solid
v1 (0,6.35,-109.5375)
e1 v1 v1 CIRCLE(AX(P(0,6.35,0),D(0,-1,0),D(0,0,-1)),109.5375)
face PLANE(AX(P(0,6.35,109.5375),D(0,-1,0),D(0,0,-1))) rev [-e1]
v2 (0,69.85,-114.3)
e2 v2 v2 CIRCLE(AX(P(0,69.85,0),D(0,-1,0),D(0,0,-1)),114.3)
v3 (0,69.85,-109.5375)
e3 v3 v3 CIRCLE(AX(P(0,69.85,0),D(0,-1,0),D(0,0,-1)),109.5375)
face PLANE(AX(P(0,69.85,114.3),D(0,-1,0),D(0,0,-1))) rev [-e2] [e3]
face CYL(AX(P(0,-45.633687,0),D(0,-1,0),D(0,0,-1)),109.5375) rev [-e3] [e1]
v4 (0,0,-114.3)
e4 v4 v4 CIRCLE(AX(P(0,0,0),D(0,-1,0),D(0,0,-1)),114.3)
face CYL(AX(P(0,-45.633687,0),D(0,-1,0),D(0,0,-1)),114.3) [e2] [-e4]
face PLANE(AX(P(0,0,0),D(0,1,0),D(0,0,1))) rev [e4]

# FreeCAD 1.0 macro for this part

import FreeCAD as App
import Part
import Sketcher
from FreeCAD import Vector
Q = App.Units.Quantity


def add_polygon(sketch, points):
    """Adds a closed chain of lines whose ends are joined by coincident constraints."""
    first, n = sketch.GeometryCount, len(points)
    for a, b in zip(points, points[1:] + points[:1]):
        sketch.addGeometry(Part.LineSegment(App.Vector(*a, 0), App.Vector(*b, 0)), False)
    for i in range(n):
        sketch.addConstraint(Sketcher.Constraint("Coincident", first + i, 2, first + (i + 1) % n, 1))

doc = App.newDocument("Part")
body = doc.addObject("PartDesign::Body", "Body")

sketch1 = body.newObject("Sketcher::SketchObject", "Sketch")
sketch1.AttachmentSupport = (doc.getObject("YZ_Plane"), [""])
sketch1.MapMode = "FlatFace"
add_polygon(sketch1, [(0, 114.3), (0, 0), (6.3, 0), (6.3, 109.5), (69.8, 109.5), (69.8, 114.3)])
sketch1.addConstraint(Sketcher.Constraint("Vertical", 0))
sketch1.addConstraint(Sketcher.Constraint("Horizontal", 1))
sketch1.addConstraint(Sketcher.Constraint("Vertical", 2))
sketch1.addConstraint(Sketcher.Constraint("Horizontal", 3))
sketch1.addConstraint(Sketcher.Constraint("Vertical", 4))
sketch1.addConstraint(Sketcher.Constraint("Horizontal", 5))
sketch1.addConstraint(Sketcher.Constraint("Coincident", 0, 2, -1, 1))
sketch1.addConstraint(Sketcher.Constraint("DistanceX", 3, 1, 3, 2, Q("2.5 in")))
sketch1.addConstraint(Sketcher.Constraint("DistanceY", 0, 2, 0, 1, Q("4.5 in")))
sketch1.addConstraint(Sketcher.Constraint("DistanceX", 1, 1, 1, 2, Q("0.25 in")))
sketch1.addConstraint(Sketcher.Constraint("DistanceY", 2, 1, 2, 2, Q("4.3125 in")))
revolution = body.newObject("PartDesign::Revolution", "Revolution")
revolution.Profile = sketch1
revolution.ReferenceAxis = (sketch1, ["H_Axis"])
revolution.Angle = 360

doc.recompute()
